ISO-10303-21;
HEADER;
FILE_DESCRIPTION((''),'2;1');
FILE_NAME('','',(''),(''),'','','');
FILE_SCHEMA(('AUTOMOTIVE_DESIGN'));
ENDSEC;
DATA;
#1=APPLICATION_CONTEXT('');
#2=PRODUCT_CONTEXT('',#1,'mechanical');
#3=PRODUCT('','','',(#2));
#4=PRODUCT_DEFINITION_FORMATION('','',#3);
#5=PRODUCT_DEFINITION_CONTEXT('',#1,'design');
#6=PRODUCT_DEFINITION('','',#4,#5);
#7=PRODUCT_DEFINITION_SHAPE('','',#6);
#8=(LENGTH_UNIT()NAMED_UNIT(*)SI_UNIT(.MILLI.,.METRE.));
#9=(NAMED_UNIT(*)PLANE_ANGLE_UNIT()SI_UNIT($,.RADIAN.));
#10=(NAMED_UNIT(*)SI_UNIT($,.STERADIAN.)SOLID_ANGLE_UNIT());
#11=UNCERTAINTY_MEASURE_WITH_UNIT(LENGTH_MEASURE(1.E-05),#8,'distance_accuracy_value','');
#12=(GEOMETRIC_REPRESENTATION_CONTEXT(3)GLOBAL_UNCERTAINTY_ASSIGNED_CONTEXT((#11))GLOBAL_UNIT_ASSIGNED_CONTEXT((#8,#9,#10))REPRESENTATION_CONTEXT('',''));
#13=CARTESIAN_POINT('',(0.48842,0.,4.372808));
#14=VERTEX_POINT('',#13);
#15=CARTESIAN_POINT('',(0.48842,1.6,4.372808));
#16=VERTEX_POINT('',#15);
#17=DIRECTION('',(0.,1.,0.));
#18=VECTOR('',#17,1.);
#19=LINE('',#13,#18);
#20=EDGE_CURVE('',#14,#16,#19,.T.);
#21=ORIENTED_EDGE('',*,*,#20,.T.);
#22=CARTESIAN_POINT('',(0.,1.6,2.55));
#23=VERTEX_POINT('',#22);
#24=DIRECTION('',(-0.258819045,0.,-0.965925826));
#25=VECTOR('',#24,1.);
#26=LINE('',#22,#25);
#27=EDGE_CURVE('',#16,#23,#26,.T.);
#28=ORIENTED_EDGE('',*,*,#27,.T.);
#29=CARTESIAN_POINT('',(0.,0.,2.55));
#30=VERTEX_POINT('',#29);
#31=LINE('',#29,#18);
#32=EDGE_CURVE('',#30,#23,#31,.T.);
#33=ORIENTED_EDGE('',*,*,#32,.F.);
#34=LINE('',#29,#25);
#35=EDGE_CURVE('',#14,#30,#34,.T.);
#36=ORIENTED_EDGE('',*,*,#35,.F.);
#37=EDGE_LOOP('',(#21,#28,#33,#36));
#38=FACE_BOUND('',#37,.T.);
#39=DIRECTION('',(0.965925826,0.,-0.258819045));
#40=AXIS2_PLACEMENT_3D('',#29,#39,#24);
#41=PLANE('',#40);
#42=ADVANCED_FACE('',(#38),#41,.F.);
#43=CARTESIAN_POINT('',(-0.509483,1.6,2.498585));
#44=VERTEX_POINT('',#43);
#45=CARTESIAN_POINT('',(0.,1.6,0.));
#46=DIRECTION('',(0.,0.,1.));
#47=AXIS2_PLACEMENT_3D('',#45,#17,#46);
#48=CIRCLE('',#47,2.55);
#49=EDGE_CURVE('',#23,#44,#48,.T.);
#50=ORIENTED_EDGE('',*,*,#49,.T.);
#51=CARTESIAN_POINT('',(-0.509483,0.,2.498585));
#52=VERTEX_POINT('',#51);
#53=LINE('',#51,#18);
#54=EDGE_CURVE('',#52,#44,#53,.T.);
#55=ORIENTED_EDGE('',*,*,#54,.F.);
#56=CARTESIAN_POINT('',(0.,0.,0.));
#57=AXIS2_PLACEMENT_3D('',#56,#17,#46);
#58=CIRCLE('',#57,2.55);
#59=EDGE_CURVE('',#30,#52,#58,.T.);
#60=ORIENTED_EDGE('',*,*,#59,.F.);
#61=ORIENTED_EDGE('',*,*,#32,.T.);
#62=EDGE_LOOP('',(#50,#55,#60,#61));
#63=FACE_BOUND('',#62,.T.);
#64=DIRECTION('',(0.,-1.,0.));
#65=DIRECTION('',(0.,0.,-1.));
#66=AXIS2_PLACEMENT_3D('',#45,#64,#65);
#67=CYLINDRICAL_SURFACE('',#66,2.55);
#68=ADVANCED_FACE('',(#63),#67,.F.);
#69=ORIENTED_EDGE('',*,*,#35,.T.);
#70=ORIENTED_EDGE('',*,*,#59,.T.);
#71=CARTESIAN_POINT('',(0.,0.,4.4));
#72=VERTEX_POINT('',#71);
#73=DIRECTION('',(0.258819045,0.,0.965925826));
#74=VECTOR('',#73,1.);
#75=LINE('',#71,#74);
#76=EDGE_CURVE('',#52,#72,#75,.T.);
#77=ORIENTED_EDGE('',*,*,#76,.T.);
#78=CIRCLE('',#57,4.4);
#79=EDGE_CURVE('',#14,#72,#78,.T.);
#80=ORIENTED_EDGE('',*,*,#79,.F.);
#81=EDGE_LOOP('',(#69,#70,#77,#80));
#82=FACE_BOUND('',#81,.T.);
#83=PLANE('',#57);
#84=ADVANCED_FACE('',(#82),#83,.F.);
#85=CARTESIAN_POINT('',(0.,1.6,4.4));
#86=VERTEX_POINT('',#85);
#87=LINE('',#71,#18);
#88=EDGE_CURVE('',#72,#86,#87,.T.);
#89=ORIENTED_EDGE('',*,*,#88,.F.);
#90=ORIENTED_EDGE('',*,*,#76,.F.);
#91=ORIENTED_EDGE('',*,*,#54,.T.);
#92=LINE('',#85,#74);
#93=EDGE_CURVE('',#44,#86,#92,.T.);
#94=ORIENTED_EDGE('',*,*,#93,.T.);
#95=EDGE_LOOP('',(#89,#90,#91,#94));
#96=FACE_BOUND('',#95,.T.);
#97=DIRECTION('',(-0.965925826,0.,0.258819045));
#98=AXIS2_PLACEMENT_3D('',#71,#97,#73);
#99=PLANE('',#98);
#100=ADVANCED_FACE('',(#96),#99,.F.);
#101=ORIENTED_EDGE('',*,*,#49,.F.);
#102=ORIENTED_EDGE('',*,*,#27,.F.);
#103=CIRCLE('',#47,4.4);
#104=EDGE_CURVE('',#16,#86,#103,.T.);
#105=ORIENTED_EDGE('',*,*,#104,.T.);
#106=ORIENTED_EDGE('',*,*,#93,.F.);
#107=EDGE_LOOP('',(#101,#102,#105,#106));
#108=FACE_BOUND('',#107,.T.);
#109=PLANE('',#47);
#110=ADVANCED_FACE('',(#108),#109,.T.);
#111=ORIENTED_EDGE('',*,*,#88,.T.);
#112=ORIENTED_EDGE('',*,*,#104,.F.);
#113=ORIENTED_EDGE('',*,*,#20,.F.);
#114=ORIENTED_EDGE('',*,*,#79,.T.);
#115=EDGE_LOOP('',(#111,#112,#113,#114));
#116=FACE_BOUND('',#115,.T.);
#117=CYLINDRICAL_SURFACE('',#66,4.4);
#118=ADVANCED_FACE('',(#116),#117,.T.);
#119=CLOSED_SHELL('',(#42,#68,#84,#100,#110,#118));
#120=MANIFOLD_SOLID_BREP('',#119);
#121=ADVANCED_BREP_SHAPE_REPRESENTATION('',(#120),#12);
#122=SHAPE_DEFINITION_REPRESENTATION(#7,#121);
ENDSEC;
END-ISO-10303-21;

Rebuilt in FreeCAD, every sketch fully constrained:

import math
import FreeCAD as App
import Part
import Sketcher
Q = App.Units.Quantity

doc = App.newDocument("Part")
body = doc.addObject("PartDesign::Body", "Body")

sketch1 = body.newObject("Sketcher::SketchObject", "Sketch")
sketch1.AttachmentSupport = (doc.getObject("XZ_Plane"), [""])
sketch1.MapMode = "FlatFace"
sketch1.addGeometry([
    Part.Circle(App.Vector(0, 0, 0), App.Vector(0, 0, 1), 4.4),
    Part.Circle(App.Vector(0, 0, 0), App.Vector(0, 0, 1), 2.5),
], False)
sketch1.addConstraint([
    Sketcher.Constraint("Coincident", 0, 3, -1, 1),
    Sketcher.Constraint("Coincident", 1, 3, -1, 1),
    Sketcher.Constraint("Diameter", 0, 8.8),
    Sketcher.Constraint("Diameter", 1, 5.1),
])
pad1 = body.newObject("PartDesign::Pad", "Pad")
pad1.Profile = sketch1
pad1.Length = 1.6
pad1.Reversed = True

sketch2 = body.newObject("Sketcher::SketchObject", "Sketch001")
sketch2.AttachmentSupport = (doc.getObject("XZ_Plane"), [""])
sketch2.MapMode = "FlatFace"
sketch2.AttachmentOffset = App.Placement(App.Vector(0, 0, -1.6), App.Rotation())
sketch2.addGeometry([
    Part.LineSegment(App.Vector(-0.51, 2.5, 0), App.Vector(0, 4.4, 0)),
    Part.ArcOfCircle(Part.Circle(App.Vector(0, 0, 0), App.Vector(0, 0, 1), 4.4), math.radians(83.63), math.radians(90)),
    Part.LineSegment(App.Vector(0.49, 4.37, 0), App.Vector(0, 2.55, 0)),
    Part.ArcOfCircle(Part.Circle(App.Vector(0, 0, 0), App.Vector(0, 0, 1), 2.55), math.radians(90), math.radians(101.53)),
], False)
sketch2.addConstraint([
    Sketcher.Constraint("Coincident", 0, 2, 1, 2),
    Sketcher.Constraint("Coincident", 1, 1, 2, 1),
    Sketcher.Constraint("Coincident", 2, 2, 3, 1),
    Sketcher.Constraint("Coincident", 3, 2, 0, 1),
    Sketcher.Constraint("Coincident", 1, 3, -1, 1),
    Sketcher.Constraint("Coincident", 3, 3, -1, 1),
    Sketcher.Constraint("PointOnObject", 0, 2, -2),
    Sketcher.Constraint("PointOnObject", 2, 2, -2),
    Sketcher.Constraint("Parallel", 0, 2),
    Sketcher.Constraint("Radius", 1, 4.4),
    Sketcher.Constraint("Angle", 0, Q("75 deg")),
    Sketcher.Constraint("Radius", 3, 2.55),
])
pocket1 = body.newObject("PartDesign::Pocket", "Pocket")
pocket1.Profile = sketch2
pocket1.Type = "ThroughAll"
pocket1.Midplane = True

doc.recompute()
